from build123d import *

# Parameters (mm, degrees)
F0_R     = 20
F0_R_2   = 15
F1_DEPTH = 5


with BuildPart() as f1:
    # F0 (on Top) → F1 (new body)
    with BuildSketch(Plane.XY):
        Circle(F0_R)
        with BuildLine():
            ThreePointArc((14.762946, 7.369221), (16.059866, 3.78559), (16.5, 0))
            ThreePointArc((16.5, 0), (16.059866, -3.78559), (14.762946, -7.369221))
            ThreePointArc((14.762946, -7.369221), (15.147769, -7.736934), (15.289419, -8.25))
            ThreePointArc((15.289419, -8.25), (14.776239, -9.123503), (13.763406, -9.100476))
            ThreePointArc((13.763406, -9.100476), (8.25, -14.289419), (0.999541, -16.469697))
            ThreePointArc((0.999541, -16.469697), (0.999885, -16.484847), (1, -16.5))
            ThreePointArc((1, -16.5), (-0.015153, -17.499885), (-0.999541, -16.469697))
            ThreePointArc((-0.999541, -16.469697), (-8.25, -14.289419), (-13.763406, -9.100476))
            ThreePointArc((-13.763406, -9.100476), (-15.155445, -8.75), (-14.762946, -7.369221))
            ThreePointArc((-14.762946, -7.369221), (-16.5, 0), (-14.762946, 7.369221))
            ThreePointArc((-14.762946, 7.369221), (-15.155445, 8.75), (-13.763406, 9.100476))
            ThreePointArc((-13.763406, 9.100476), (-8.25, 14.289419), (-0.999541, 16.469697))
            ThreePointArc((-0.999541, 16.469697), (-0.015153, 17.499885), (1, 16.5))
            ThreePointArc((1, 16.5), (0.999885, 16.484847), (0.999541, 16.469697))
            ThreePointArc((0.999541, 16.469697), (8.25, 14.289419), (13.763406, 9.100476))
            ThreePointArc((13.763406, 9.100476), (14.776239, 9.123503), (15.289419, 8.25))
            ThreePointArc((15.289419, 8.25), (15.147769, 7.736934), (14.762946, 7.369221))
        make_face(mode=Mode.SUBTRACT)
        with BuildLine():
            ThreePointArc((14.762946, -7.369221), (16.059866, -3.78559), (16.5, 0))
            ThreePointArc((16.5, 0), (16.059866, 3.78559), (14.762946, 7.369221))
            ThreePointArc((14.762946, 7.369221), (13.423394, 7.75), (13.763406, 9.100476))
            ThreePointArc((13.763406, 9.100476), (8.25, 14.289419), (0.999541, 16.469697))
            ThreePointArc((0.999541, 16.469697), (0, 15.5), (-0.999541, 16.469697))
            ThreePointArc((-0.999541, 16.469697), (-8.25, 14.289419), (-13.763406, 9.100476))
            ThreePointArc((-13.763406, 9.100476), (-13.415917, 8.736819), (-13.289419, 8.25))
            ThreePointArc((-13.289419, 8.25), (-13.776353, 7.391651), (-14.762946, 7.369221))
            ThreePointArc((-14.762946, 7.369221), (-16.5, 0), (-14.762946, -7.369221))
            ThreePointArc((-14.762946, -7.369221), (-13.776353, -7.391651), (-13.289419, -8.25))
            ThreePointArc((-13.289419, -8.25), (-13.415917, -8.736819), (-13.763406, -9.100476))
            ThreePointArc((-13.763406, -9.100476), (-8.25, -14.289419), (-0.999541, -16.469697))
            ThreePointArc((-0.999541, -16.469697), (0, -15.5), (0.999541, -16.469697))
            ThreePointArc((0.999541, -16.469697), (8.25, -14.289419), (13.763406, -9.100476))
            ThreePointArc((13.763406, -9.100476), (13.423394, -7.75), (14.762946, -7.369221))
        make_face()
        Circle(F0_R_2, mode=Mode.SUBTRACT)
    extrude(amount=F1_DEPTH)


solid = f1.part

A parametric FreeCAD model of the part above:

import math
import FreeCAD as App
import Part
import Sketcher
from FreeCAD import Vector
Q = App.Units.Quantity

doc = App.newDocument("Part")
body = doc.addObject("PartDesign::Body", "Body")

sketch1 = body.newObject("Sketcher::SketchObject", "Sketch")
sketch1.AttachmentSupport = (doc.getObject("XY_Plane"), [""])
sketch1.MapMode = "FlatFace"
sketch1.addGeometry(Part.Circle(Vector(0, 0, 0), Vector(0, 0, 1), 20), False)
sketch1.addGeometry(Part.ArcOfCircle(Part.Circle(Vector(-14.289, -8.25, 0), Vector(0, 0, 1), 1), math.radians(118), math.radians(302)), False)
sketch1.addGeometry(Part.ArcOfCircle(Part.Circle(Vector(-14.289, -8.25, 0), Vector(0, 0, 1), 1), math.radians(0), math.radians(118)), False)
sketch1.addGeometry(Part.ArcOfCircle(Part.Circle(Vector(-14.289, -8.25, 0), Vector(0, 0, 1), 1), math.radians(-58), math.radians(0)), False)
sketch1.addGeometry(Part.ArcOfCircle(Part.Circle(Vector(0, -16.5, 0), Vector(0, 0, 1), 1), math.radians(178), math.radians(360)), False)
sketch1.addGeometry(Part.ArcOfCircle(Part.Circle(Vector(0, -16.5, 0), Vector(0, 0, 1), 1), math.radians(2), math.radians(178)), False)
sketch1.addGeometry(Part.ArcOfCircle(Part.Circle(Vector(-0.003, -16.5, 0), Vector(0, 0, 1), 1.003), math.radians(0), math.radians(1.73)), False)
sketch1.addGeometry(Part.ArcOfCircle(Part.Circle(Vector(14.289, -8.25, 0), Vector(0, 0, 1), 1), math.radians(-122), math.radians(0)), False)
sketch1.addGeometry(Part.ArcOfCircle(Part.Circle(Vector(14.289, -8.25, 0), Vector(0, 0, 1), 1), math.radians(62), math.radians(238)), False)
sketch1.addGeometry(Part.ArcOfCircle(Part.Circle(Vector(14.289, -8.25, 0), Vector(0, 0, 1), 1), math.radians(0), math.radians(62)), False)
sketch1.addGeometry(Part.ArcOfCircle(Part.Circle(Vector(-14.289, 8.25, 0), Vector(0, 0, 1), 1), math.radians(58), math.radians(242)), False)
sketch1.addGeometry(Part.ArcOfCircle(Part.Circle(Vector(-14.289, 8.25, 0), Vector(0, 0, 1), 1), math.radians(0), math.radians(58)), False)
sketch1.addGeometry(Part.ArcOfCircle(Part.Circle(Vector(-14.289, 8.25, 0), Vector(0, 0, 1), 1), math.radians(-118), math.radians(0)), False)
sketch1.addGeometry(Part.Circle(Vector(0, 0, 0), Vector(0, 0, 1), 15), False)
sketch1.addGeometry(Part.ArcOfCircle(Part.Circle(Vector(14.289, 8.25, 0), Vector(0, 0, 1), 1), math.radians(-62), math.radians(0)), False)
sketch1.addGeometry(Part.ArcOfCircle(Part.Circle(Vector(14.289, 8.25, 0), Vector(0, 0, 1), 1), math.radians(122), math.radians(298)), False)
sketch1.addGeometry(Part.ArcOfCircle(Part.Circle(Vector(14.289, 8.25, 0), Vector(0, 0, 1), 1), math.radians(0), math.radians(122)), False)
sketch1.addGeometry(Part.ArcOfCircle(Part.Circle(Vector(-0.003, 16.5, 0), Vector(0, 0, 1), 1.003), math.radians(-1.73), math.radians(0)), False)
sketch1.addGeometry(Part.ArcOfCircle(Part.Circle(Vector(0, 16.5, 0), Vector(0, 0, 1), 1), math.radians(-178), math.radians(-2)), False)
sketch1.addGeometry(Part.ArcOfCircle(Part.Circle(Vector(0, 16.5, 0), Vector(0, 0, 1), 1), math.radians(0), math.radians(182)), False)
sketch1.addConstraint(Sketcher.Constraint("Tangent", 1, 1, 2, 2))
sketch1.addConstraint(Sketcher.Constraint("Coincident", 2, 1, 3, 2))
sketch1.addConstraint(Sketcher.Constraint("Tangent", 3, 1, 1, 2))
sketch1.addConstraint(Sketcher.Constraint("Tangent", 4, 1, 5, 2))
sketch1.addConstraint(Sketcher.Constraint("Coincident", 5, 1, 6, 2))
sketch1.addConstraint(Sketcher.Constraint("Coincident", 6, 1, 4, 2))
sketch1.addConstraint(Sketcher.Constraint("Tangent", 7, 1, 8, 2))
sketch1.addConstraint(Sketcher.Constraint("Coincident", 8, 1, 9, 2))
sketch1.addConstraint(Sketcher.Constraint("Coincident", 9, 1, 7, 2))
sketch1.addConstraint(Sketcher.Constraint("Tangent", 10, 1, 11, 2))
sketch1.addConstraint(Sketcher.Constraint("Coincident", 11, 1, 12, 2))
sketch1.addConstraint(Sketcher.Constraint("Tangent", 12, 1, 10, 2))
sketch1.addConstraint(Sketcher.Constraint("Coincident", 14, 1, 15, 2))
sketch1.addConstraint(Sketcher.Constraint("Tangent", 15, 1, 16, 2))
sketch1.addConstraint(Sketcher.Constraint("Coincident", 16, 1, 14, 2))
sketch1.addConstraint(Sketcher.Constraint("Coincident", 17, 1, 18, 2))
sketch1.addConstraint(Sketcher.Constraint("Tangent", 18, 1, 19, 2))
sketch1.addConstraint(Sketcher.Constraint("Coincident", 19, 1, 17, 2))
sketch1.addConstraint(Sketcher.Constraint("Coincident", 0, 3, -1, 1))
sketch1.addConstraint(Sketcher.Constraint("Coincident", 13, 3, -1, 1))
sketch1.addConstraint(Sketcher.Constraint("Coincident", 9, 3, 7, 3))
sketch1.addConstraint(Sketcher.Constraint("Coincident", 15, 3, 14, 3))
sketch1.addConstraint(Sketcher.Constraint("Equal", 1, 2))
sketch1.addConstraint(Sketcher.Constraint("Equal", 2, 4))
sketch1.addConstraint(Sketcher.Constraint("Equal", 4, 5))
sketch1.addConstraint(Sketcher.Constraint("Equal", 5, 7))
sketch1.addConstraint(Sketcher.Constraint("Equal", 8, 10))
sketch1.addConstraint(Sketcher.Constraint("Equal", 3, 11))
sketch1.addConstraint(Sketcher.Constraint("Equal", 9, 14))
sketch1.addConstraint(Sketcher.Constraint("Equal", 6, 17))
sketch1.addConstraint(Sketcher.Constraint("Equal", 16, 18))
sketch1.addConstraint(Sketcher.Constraint("Equal", 18, 19))
sketch1.addConstraint(Sketcher.Constraint("Symmetric", 7, 3, 10, 3, -1, 1))
sketch1.addConstraint(Sketcher.Constraint("Symmetric", 1, 3, 14, 3, -1, 1))
sketch1.addConstraint(Sketcher.Constraint("Symmetric", 4, 3, 18, 3, -1, 1))
sketch1.addConstraint(Sketcher.Constraint("Symmetric", 1, 3, 7, 3, -2))
sketch1.addConstraint(Sketcher.Constraint("Symmetric", 4, 1, 5, 1, -2))
sketch1.addConstraint(Sketcher.Constraint("Horizontal", 8, 3, 2, 1))
sketch1.addConstraint(Sketcher.Constraint("Horizontal", 5, 3, 6, 1))
sketch1.addConstraint(Sketcher.Constraint("Horizontal", 3, 1, 7, 1))
sketch1.addConstraint(Sketcher.Constraint("Horizontal", 1, 1, 8, 1))
sketch1.addConstraint(Sketcher.Constraint("Horizontal", 2, 1, 9, 1))
sketch1.addConstraint(Sketcher.Constraint("Horizontal", 16, 3, 11, 1))
sketch1.addConstraint(Sketcher.Constraint("Horizontal", 12, 1, 14, 1))
sketch1.addConstraint(Sketcher.Constraint("Horizontal", 10, 1, 15, 1))
sketch1.addConstraint(Sketcher.Constraint("Horizontal", 11, 1, 16, 1))
sketch1.addConstraint(Sketcher.Constraint("Horizontal", 17, 1, 18, 1))
sketch1.addConstraint(Sketcher.Constraint("Horizontal", 18, 3, 19, 1))
sketch1.addConstraint(Sketcher.Constraint("Vertical", 3, 1, 10, 1))
sketch1.addConstraint(Sketcher.Constraint("Vertical", 1, 1, 12, 1))
sketch1.addConstraint(Sketcher.Constraint("Vertical", 5, 1, 17, 1))
sketch1.addConstraint(Sketcher.Constraint("Diameter", 0, Q("40 mm")))
sketch1.addConstraint(Sketcher.Constraint("Diameter", 13, Q("30 mm")))
sketch1.addConstraint(Sketcher.Constraint("Radius", 1, Q("1 mm")))
sketch1.addConstraint(Sketcher.Constraint("DistanceY", 4, 3, -1, 1, Q("16.5 mm")))
sketch1.addConstraint(Sketcher.Constraint("DistanceY", 2, 3, 10, 3, Q("16.5 mm")))
sketch1.addConstraint(Sketcher.Constraint("Radius", 6, Q("1.002683 mm")))
sketch1.addConstraint(Sketcher.Constraint("DistanceX", 1, 3, -1, 1, Q("14.28942 mm")))
sketch1.addConstraint(Sketcher.Constraint("DistanceY", 1, 1, -1, 1, Q("7.369221 mm")))
sketch1.addConstraint(Sketcher.Constraint("DistanceX", 4, 1, -1, 1, Q("0.999541 mm")))
sketch1.addConstraint(Sketcher.Constraint("DistanceY", 3, 1, 3, 3, Q("0.850478 mm")))
pad1 = body.newObject("PartDesign::Pad", "Pad")
pad1.Profile = sketch1
pad1.Length = 5

doc.recompute()
